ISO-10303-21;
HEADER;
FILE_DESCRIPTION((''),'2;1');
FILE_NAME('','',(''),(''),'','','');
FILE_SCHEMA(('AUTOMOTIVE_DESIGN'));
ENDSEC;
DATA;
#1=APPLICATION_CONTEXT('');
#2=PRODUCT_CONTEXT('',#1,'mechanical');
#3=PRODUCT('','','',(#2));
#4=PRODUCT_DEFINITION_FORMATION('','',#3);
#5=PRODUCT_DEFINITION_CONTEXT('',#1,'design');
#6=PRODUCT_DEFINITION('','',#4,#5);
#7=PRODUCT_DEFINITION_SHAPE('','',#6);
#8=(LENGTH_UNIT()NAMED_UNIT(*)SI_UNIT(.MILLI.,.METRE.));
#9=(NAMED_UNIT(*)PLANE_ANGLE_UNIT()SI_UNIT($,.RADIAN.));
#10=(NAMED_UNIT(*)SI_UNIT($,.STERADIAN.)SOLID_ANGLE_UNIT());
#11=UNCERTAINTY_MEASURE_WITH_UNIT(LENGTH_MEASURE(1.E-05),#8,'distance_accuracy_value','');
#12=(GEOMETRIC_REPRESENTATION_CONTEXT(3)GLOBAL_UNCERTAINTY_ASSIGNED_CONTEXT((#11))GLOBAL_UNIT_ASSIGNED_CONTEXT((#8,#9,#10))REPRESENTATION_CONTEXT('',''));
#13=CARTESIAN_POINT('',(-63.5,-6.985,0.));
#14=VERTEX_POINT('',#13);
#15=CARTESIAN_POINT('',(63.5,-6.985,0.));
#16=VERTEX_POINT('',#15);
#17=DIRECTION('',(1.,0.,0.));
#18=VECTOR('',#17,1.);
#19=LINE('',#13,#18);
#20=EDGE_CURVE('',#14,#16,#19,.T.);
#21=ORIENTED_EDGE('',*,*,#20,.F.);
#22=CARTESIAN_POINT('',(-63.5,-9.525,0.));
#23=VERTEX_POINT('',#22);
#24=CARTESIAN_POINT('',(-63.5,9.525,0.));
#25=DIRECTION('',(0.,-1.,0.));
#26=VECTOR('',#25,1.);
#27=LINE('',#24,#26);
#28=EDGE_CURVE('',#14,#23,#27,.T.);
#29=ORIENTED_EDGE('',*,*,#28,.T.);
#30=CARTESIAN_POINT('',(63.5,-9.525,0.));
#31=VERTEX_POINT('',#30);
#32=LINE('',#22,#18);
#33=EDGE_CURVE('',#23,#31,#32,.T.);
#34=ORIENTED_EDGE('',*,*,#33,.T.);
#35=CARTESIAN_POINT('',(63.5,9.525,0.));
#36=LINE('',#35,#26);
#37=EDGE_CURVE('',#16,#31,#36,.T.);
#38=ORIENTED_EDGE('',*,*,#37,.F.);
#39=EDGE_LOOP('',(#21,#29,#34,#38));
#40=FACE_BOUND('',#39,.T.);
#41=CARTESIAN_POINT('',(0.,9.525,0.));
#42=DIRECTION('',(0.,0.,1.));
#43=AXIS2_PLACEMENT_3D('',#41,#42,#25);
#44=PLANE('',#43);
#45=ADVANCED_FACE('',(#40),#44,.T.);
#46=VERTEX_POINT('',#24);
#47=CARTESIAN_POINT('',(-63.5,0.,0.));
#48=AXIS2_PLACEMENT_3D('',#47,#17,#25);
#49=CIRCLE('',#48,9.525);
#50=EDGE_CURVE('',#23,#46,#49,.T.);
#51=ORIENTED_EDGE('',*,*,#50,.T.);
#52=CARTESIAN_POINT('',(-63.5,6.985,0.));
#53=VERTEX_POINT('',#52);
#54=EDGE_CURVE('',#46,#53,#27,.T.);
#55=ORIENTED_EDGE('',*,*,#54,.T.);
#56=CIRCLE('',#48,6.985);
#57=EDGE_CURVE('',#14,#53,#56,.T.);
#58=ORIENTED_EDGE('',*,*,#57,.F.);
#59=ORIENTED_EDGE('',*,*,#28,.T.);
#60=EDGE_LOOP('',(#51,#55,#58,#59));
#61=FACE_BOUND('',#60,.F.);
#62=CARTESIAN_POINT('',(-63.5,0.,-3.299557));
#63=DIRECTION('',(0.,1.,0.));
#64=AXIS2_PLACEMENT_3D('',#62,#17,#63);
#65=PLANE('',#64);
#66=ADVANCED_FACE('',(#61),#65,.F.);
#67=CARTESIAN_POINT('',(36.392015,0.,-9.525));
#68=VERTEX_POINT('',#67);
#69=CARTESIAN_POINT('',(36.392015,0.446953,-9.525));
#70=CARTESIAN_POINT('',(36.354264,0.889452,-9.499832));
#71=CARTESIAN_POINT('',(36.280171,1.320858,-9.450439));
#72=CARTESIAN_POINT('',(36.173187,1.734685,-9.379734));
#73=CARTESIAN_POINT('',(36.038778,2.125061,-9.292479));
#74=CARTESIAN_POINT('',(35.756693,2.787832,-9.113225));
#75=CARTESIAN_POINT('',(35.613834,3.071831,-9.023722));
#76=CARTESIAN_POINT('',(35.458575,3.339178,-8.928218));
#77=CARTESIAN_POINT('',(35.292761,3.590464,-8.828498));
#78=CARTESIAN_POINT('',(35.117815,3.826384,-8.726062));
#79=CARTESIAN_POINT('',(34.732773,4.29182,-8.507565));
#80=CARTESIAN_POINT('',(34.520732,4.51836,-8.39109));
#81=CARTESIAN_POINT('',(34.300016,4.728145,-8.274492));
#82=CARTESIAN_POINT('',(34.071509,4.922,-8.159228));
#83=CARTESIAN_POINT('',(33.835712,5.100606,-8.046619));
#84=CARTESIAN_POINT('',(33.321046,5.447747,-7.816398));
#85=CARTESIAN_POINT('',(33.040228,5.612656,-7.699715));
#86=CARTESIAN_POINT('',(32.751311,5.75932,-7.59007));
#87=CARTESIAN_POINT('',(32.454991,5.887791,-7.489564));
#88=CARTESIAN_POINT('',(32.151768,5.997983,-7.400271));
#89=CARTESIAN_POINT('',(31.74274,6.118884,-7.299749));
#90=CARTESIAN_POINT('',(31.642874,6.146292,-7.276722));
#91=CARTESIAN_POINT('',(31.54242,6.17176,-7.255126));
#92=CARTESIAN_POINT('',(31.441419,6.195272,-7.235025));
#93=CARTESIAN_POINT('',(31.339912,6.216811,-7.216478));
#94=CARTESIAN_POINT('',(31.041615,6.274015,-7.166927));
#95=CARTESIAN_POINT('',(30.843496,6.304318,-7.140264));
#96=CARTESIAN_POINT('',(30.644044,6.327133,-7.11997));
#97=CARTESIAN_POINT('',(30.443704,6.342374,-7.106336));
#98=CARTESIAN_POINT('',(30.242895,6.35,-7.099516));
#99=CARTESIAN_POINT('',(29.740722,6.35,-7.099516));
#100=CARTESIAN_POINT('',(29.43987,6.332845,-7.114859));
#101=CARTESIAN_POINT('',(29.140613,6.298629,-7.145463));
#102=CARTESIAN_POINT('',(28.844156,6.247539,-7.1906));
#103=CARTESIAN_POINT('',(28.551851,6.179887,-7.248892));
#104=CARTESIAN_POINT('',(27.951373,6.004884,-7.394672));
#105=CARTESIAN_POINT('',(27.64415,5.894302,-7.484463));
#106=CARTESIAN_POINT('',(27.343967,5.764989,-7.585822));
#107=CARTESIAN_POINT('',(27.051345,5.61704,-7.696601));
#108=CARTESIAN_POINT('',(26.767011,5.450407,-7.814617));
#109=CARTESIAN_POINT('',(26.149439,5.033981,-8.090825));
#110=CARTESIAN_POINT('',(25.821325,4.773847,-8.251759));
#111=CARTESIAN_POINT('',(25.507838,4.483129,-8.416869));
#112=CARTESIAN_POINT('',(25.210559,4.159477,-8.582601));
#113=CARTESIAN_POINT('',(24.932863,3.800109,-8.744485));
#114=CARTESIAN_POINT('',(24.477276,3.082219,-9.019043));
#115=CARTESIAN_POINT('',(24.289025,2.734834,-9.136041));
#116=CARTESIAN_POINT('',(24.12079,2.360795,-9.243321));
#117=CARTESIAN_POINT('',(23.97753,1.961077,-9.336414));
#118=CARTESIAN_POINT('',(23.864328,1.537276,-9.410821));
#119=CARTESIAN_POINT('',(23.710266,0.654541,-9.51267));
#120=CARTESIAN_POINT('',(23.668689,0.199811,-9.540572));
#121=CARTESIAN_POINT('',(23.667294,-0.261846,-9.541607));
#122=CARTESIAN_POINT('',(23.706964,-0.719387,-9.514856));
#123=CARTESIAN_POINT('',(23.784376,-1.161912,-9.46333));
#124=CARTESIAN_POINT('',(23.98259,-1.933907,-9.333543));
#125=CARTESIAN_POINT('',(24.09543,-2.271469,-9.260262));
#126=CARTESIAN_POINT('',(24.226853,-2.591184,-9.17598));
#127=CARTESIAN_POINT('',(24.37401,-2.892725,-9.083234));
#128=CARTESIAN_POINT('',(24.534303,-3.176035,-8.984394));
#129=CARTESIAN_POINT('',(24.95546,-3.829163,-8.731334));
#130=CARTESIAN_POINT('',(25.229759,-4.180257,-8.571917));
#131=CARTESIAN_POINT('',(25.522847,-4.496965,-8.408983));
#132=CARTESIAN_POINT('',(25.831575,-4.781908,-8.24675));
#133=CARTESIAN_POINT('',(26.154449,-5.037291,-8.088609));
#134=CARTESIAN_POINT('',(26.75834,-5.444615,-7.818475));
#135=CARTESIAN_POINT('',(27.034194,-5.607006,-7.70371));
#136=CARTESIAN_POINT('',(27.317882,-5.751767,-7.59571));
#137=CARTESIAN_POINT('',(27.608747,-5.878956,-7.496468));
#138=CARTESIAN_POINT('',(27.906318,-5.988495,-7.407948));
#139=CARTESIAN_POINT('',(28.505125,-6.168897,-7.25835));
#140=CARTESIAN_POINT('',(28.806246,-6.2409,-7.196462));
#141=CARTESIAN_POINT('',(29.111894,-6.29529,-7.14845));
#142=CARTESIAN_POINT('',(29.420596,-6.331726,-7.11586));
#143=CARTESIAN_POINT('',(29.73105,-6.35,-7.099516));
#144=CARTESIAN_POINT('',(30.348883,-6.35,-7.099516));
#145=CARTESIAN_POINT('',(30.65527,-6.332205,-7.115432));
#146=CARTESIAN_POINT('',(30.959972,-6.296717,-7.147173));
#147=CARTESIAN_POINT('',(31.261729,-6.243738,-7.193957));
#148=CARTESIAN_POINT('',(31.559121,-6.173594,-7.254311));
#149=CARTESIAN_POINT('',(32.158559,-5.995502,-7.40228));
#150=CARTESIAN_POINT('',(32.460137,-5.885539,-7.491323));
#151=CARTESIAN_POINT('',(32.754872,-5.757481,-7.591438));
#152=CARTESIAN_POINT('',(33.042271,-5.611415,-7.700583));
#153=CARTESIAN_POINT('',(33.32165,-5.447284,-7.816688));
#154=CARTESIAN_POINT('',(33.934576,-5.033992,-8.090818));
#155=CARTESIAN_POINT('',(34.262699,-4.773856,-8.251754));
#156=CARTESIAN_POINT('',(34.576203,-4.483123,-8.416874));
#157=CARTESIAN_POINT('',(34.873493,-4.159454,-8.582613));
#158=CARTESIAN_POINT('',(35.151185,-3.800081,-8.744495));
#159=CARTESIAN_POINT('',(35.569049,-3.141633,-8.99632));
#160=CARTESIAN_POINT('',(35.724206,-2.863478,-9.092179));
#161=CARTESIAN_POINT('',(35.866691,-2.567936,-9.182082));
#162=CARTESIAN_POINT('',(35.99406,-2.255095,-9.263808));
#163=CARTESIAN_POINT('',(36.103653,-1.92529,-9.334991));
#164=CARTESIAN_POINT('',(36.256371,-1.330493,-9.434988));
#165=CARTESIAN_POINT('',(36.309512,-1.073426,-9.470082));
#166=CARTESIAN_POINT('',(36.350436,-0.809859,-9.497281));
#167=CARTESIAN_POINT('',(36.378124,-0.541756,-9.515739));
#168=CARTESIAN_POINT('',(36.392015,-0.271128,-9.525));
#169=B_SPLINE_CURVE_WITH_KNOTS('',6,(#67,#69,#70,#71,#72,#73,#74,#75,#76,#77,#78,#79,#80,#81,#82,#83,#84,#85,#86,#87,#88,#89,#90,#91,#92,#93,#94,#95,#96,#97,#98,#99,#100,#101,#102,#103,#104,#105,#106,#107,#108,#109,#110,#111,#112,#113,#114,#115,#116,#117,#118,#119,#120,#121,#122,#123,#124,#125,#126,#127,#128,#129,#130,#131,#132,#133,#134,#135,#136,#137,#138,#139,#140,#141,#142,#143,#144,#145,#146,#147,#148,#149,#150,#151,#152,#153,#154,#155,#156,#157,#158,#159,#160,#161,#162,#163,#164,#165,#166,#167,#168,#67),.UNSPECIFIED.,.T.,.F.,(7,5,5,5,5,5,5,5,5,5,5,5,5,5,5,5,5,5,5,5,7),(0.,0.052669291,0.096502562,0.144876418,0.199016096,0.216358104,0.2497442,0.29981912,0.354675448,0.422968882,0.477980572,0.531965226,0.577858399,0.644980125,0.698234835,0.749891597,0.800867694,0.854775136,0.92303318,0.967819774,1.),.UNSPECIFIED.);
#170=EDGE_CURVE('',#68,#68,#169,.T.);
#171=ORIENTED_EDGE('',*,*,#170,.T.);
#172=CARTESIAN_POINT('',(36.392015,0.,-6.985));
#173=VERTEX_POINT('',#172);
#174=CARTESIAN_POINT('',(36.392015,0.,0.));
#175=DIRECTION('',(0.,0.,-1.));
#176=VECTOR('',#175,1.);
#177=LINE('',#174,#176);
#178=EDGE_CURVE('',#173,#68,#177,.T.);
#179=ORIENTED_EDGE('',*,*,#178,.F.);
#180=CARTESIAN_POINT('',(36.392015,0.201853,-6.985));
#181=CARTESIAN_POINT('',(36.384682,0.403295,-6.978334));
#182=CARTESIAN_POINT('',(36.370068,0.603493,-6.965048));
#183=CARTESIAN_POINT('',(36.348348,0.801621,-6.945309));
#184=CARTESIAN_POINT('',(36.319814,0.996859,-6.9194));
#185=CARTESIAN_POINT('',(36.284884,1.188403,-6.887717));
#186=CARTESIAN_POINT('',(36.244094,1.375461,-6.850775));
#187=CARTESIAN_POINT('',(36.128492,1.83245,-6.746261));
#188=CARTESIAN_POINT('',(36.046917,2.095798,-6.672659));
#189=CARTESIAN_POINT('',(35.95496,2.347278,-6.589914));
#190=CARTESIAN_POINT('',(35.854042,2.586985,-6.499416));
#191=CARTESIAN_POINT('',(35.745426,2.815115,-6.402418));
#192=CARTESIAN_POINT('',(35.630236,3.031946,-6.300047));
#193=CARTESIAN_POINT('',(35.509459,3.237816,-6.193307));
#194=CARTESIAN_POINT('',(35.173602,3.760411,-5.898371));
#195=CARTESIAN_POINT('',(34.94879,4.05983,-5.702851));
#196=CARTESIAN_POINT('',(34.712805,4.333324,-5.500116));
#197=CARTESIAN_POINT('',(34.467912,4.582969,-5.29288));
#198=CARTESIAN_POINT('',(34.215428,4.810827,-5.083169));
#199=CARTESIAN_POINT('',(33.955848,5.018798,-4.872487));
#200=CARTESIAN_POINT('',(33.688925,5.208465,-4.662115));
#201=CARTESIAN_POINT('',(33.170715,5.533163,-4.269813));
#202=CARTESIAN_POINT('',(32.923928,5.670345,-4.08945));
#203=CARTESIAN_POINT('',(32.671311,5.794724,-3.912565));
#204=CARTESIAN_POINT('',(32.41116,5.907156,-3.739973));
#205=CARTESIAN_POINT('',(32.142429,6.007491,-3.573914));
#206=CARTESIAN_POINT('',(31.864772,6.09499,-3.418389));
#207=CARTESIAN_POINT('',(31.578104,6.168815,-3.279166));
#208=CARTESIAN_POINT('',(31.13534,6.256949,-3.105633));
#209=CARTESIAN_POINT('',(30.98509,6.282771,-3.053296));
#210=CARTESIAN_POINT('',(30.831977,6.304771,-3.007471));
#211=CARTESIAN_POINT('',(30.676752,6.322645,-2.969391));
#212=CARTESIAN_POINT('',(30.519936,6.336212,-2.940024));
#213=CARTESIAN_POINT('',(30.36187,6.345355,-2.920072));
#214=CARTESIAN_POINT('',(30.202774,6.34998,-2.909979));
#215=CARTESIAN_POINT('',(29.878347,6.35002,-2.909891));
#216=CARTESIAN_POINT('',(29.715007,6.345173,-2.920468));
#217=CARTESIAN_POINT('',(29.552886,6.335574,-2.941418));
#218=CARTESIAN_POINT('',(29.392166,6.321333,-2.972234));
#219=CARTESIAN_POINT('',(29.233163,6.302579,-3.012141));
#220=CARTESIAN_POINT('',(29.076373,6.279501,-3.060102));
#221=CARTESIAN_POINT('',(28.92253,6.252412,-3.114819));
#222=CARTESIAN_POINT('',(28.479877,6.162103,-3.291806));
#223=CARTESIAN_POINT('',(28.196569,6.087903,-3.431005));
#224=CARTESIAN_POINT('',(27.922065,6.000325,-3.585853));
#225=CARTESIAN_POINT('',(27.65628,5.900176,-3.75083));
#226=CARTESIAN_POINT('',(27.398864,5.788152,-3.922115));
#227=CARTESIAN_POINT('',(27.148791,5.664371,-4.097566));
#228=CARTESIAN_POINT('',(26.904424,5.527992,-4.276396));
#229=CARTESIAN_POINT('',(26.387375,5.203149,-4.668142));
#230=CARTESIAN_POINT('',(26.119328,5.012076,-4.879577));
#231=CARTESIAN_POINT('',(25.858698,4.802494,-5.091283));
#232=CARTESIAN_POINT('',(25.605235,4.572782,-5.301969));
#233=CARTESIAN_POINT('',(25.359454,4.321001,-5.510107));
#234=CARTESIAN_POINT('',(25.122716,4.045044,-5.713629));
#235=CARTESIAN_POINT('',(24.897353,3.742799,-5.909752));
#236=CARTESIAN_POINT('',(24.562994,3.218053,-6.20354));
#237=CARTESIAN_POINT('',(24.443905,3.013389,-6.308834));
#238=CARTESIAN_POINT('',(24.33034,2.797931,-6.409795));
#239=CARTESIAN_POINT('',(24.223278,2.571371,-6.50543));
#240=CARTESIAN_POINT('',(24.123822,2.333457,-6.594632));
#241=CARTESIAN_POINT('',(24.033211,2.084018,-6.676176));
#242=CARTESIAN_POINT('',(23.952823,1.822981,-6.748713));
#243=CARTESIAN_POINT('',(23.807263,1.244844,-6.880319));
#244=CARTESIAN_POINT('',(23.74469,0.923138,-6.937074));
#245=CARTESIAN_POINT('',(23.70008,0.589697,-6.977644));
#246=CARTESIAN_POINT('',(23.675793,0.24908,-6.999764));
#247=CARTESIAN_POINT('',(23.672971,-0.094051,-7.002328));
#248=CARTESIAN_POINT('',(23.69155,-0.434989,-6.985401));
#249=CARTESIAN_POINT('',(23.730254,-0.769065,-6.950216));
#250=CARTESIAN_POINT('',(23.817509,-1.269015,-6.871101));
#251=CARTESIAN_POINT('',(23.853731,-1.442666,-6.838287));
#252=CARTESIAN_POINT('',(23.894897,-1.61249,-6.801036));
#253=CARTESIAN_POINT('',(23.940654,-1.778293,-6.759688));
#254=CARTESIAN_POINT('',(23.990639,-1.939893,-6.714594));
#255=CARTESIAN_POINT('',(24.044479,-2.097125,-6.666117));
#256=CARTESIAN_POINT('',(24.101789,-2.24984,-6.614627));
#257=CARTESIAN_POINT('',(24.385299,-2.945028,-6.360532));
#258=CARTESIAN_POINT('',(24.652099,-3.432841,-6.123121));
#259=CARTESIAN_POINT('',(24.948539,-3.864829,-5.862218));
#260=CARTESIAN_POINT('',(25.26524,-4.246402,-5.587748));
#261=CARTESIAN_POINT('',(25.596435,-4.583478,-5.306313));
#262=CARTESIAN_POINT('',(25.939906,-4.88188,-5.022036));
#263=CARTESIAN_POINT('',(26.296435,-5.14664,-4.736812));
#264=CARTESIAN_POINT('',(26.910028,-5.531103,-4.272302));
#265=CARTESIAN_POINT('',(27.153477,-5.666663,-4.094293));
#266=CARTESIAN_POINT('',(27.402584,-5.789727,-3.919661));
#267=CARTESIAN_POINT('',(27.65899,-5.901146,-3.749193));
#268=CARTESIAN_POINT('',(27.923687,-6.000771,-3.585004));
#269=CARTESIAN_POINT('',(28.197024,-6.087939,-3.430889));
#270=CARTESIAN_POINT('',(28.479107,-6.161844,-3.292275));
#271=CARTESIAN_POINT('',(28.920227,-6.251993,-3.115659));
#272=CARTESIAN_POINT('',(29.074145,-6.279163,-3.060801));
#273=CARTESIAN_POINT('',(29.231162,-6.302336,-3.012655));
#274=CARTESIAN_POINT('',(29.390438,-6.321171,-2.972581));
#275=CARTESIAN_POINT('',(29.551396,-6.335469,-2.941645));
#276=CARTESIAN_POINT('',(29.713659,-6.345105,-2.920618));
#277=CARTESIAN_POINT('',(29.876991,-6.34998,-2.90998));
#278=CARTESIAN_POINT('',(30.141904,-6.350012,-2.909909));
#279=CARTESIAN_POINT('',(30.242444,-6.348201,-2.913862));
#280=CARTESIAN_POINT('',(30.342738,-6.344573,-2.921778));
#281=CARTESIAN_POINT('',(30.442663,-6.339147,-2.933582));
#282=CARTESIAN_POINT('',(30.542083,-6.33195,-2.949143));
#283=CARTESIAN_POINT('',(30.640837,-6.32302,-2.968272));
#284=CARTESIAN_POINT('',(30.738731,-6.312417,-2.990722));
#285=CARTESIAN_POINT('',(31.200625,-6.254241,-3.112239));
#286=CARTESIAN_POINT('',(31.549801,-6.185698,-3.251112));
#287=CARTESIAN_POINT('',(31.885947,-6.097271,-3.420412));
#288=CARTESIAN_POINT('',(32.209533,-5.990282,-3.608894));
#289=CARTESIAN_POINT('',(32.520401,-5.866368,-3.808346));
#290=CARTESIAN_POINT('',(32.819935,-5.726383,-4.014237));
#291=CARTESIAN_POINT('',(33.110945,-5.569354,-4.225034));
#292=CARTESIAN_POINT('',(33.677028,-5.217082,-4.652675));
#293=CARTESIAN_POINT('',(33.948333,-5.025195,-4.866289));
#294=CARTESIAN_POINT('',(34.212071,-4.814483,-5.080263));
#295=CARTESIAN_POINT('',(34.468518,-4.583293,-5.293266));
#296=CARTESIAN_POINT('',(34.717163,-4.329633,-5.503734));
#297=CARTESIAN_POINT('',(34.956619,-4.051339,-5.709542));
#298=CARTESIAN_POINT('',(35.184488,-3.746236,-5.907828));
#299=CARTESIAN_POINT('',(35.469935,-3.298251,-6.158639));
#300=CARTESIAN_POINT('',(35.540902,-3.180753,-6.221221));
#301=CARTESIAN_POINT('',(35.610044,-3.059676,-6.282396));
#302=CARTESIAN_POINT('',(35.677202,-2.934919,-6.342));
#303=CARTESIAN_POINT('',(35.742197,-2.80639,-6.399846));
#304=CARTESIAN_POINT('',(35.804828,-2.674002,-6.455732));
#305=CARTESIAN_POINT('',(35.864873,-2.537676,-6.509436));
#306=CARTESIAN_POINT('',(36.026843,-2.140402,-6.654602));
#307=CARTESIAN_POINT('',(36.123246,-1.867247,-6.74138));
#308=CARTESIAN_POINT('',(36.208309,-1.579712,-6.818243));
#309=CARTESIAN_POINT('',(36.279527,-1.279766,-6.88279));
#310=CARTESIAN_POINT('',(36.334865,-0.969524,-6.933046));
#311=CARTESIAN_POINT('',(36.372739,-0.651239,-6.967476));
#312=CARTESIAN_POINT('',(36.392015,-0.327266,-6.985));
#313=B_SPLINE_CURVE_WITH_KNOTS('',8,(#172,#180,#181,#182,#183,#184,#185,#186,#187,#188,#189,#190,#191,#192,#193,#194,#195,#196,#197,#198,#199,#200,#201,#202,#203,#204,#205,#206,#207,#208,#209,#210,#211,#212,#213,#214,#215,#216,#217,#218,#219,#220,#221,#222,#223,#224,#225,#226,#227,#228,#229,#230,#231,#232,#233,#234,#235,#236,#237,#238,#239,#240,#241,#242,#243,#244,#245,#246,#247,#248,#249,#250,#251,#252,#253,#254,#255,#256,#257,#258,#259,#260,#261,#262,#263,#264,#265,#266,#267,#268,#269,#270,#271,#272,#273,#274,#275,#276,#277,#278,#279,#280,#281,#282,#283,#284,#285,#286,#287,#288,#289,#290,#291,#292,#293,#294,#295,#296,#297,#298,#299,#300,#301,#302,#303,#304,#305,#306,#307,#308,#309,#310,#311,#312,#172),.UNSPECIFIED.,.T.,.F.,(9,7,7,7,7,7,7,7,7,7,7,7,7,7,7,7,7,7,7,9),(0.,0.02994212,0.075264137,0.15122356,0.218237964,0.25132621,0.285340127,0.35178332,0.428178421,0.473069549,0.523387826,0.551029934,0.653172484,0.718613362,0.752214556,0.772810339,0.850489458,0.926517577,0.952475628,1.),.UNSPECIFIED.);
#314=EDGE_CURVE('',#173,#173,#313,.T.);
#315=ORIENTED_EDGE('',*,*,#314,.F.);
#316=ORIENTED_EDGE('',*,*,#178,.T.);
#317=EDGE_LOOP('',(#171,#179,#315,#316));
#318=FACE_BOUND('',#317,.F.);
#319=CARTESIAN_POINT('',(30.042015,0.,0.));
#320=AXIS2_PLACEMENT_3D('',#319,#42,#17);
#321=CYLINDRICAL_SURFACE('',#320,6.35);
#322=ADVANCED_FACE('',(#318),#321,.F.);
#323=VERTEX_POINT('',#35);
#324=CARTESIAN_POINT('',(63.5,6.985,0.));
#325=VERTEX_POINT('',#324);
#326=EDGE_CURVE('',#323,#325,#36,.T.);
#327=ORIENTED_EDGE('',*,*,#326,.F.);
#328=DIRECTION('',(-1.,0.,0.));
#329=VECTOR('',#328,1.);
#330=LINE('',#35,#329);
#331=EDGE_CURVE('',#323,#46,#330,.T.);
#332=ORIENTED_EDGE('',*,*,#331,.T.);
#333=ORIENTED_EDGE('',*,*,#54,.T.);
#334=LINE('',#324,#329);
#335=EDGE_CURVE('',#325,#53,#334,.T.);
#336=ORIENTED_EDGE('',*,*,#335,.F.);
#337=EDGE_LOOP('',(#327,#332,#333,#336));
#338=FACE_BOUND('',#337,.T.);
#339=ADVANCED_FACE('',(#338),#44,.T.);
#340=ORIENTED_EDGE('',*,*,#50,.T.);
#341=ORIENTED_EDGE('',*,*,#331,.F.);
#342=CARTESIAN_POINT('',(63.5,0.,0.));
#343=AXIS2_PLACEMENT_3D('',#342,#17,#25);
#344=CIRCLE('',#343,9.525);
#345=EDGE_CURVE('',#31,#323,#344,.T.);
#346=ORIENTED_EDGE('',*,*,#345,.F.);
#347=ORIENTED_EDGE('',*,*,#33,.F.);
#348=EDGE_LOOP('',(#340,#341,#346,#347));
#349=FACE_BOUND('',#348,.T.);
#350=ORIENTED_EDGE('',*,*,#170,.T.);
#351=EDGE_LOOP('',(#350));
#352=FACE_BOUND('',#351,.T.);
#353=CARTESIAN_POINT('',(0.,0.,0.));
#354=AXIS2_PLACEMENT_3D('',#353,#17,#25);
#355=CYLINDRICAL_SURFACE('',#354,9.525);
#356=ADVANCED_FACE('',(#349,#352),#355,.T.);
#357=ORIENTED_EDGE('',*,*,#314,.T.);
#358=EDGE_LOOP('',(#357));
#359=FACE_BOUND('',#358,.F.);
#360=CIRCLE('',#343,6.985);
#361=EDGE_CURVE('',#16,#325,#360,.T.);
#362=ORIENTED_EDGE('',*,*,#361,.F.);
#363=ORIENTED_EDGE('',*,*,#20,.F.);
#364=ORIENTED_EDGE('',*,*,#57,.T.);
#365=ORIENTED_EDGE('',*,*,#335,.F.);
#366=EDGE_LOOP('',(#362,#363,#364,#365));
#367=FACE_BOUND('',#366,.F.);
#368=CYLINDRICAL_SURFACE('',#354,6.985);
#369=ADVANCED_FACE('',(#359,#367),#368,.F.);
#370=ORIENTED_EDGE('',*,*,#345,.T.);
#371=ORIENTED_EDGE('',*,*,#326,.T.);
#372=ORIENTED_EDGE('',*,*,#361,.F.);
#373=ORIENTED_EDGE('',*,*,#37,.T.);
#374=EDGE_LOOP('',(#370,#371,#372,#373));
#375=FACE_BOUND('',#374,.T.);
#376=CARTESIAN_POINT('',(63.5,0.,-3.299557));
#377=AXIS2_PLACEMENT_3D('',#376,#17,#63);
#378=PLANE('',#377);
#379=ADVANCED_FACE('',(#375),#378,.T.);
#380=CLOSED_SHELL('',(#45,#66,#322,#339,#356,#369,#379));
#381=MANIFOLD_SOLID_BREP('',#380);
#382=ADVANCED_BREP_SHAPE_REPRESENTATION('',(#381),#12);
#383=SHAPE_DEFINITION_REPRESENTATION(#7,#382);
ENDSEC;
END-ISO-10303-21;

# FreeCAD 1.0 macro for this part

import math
import FreeCAD as App
import Part
import Sketcher
Q = App.Units.Quantity


def faces_at(feature, points):
    """Names of the faces that lie closest to the given points."""
    faces = feature.Shape.Faces
    near = lambda p: min(range(len(faces)), key=lambda i: faces[i].distToShape(Part.Vertex(*p))[0])
    return sorted({f"Face{near(p) + 1}" for p in points})

doc = App.newDocument("Part")
body = doc.addObject("PartDesign::Body", "Body")

# Sketch on YZ plane
sketch1 = body.newObject("Sketcher::SketchObject", "Sketch")
sketch1.AttachmentSupport = (doc.getObject("YZ_Plane"), [""])
sketch1.MapMode = "FlatFace"
sketch1.addGeometry([
    Part.LineSegment(App.Vector(10, 0, 0), App.Vector(-10, 0, 0)),
    Part.ArcOfCircle(Part.Circle(App.Vector(0, 0, 0), App.Vector(0, 0, 1), 10), math.radians(180), math.radians(360)),
], False)
sketch1.addConstraint([
    Sketcher.Constraint("Coincident", 0, 1, 1, 2),
    Sketcher.Constraint("Coincident", 1, 1, 0, 2),
    Sketcher.Constraint("Horizontal", 0),
    Sketcher.Constraint("Coincident", 1, 3, -1, 1),
    Sketcher.Constraint("PointOnObject", 0, 1, -1),
    Sketcher.Constraint("Radius", 1, Q("0.375 in")),
])
pad1 = body.newObject("PartDesign::Pad", "Pad")
pad1.Profile = sketch1
pad1.Length = Q("5 in")
pad1.Midplane = True
doc.recompute()

thickness = body.newObject("PartDesign::Thickness", "Thickness")
thickness.Base = (pad1, faces_at(pad1, [(-63.5, 0, -4.763), (0, 0, 0), (63.5, 0, -4.763)]))
thickness.Value = Q("0.1 in")
thickness.Reversed = True
thickness.Join = "Arc"

# Sketch on XY plane
sketch2 = body.newObject("Sketcher::SketchObject", "Sketch001")
sketch2.AttachmentSupport = (doc.getObject("XY_Plane"), [""])
sketch2.MapMode = "FlatFace"
sketch2.addGeometry(Part.Circle(App.Vector(30, 0, 0), App.Vector(0, 0, 1), 6), False)
sketch2.addConstraint([
    Sketcher.Constraint("PointOnObject", 0, 3, -1),
    Sketcher.Constraint("Diameter", 0, Q("0.5 in")),
    Sketcher.Constraint("DistanceX", -1, 1, 0, 3, 30.042015),
])
pocket1 = body.newObject("PartDesign::Pocket", "Pocket")
pocket1.Profile = sketch2
pocket1.Length = Q("1 in")

doc.recompute()
